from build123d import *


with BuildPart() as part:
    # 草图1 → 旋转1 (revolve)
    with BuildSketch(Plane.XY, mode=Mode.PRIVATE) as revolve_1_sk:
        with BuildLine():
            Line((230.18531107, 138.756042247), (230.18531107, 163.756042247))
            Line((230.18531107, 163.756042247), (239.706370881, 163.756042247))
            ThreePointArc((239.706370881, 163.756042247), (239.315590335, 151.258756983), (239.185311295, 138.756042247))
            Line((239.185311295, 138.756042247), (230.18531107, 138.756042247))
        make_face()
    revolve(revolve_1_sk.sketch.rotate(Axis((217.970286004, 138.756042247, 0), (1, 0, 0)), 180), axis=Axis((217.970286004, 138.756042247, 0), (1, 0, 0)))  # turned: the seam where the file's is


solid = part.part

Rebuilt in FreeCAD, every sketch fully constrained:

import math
import FreeCAD as App
import Part
import Sketcher

V = App.Vector
Q = App.Units.Quantity

doc = App.newDocument("Part")
body = doc.addObject("PartDesign::Body", "Body")

# Sketch on XY plane
sketch1 = doc.addObject("Sketcher::SketchObject", "Sketch")
body.addObject(sketch1)
sketch1.AttachmentSupport = (doc.XY_Plane, [""])
sketch1.MapMode = "FlatFace"
sketch1.addGeometry([
    Part.LineSegment(V(230, 164, 0), V(230, 139, 0)),
    Part.LineSegment(V(230, 139, 0), V(239, 139, 0)),
    Part.ArcOfCircle(Part.Circle(V(839, 139, 0), V(0, 0, 1), 600), math.radians(177.61), math.radians(180)),
    Part.LineSegment(V(240, 164, 0), V(230, 164, 0)),
], False)
sketch1.addGeometry(Part.LineSegment(V(230, 139, 0), V(839, 139, 0)), True)  # axis
sketch1.addConstraint([
    Sketcher.Constraint("Coincident", 0, 2, 1, 1),
    Sketcher.Constraint("Coincident", 1, 2, 2, 2),
    Sketcher.Constraint("Coincident", 2, 1, 3, 1),
    Sketcher.Constraint("Coincident", 3, 2, 0, 1),
    Sketcher.Constraint("Vertical", 0),
    Sketcher.Constraint("Horizontal", 1),
    Sketcher.Constraint("Horizontal", 3),
    Sketcher.Constraint("Horizontal", 4),
    Sketcher.Constraint("Coincident", 4, 1, 0, 2),
    Sketcher.Constraint("Coincident", 4, 2, 2, 3),
    Sketcher.Constraint("Radius", 2, Q("599.999998 mm")),
    Sketcher.Constraint("DistanceX", 1, 1, 1, 2, Q("9 mm")),
    Sketcher.Constraint("DistanceY", 0, 2, 0, 1, Q("25 mm")),
    Sketcher.Constraint("DistanceX", -1, 1, 2, 3, Q("839.18531 mm")),
    Sketcher.Constraint("DistanceY", -1, 1, 2, 3, Q("138.756042 mm")),
])
revolution = doc.addObject("PartDesign::Revolution", "Revolution")
body.addObject(revolution)
revolution.Profile = sketch1
revolution.ReferenceAxis = (sketch1, ["Axis0"])
revolution.Angle = 360

doc.recompute()
